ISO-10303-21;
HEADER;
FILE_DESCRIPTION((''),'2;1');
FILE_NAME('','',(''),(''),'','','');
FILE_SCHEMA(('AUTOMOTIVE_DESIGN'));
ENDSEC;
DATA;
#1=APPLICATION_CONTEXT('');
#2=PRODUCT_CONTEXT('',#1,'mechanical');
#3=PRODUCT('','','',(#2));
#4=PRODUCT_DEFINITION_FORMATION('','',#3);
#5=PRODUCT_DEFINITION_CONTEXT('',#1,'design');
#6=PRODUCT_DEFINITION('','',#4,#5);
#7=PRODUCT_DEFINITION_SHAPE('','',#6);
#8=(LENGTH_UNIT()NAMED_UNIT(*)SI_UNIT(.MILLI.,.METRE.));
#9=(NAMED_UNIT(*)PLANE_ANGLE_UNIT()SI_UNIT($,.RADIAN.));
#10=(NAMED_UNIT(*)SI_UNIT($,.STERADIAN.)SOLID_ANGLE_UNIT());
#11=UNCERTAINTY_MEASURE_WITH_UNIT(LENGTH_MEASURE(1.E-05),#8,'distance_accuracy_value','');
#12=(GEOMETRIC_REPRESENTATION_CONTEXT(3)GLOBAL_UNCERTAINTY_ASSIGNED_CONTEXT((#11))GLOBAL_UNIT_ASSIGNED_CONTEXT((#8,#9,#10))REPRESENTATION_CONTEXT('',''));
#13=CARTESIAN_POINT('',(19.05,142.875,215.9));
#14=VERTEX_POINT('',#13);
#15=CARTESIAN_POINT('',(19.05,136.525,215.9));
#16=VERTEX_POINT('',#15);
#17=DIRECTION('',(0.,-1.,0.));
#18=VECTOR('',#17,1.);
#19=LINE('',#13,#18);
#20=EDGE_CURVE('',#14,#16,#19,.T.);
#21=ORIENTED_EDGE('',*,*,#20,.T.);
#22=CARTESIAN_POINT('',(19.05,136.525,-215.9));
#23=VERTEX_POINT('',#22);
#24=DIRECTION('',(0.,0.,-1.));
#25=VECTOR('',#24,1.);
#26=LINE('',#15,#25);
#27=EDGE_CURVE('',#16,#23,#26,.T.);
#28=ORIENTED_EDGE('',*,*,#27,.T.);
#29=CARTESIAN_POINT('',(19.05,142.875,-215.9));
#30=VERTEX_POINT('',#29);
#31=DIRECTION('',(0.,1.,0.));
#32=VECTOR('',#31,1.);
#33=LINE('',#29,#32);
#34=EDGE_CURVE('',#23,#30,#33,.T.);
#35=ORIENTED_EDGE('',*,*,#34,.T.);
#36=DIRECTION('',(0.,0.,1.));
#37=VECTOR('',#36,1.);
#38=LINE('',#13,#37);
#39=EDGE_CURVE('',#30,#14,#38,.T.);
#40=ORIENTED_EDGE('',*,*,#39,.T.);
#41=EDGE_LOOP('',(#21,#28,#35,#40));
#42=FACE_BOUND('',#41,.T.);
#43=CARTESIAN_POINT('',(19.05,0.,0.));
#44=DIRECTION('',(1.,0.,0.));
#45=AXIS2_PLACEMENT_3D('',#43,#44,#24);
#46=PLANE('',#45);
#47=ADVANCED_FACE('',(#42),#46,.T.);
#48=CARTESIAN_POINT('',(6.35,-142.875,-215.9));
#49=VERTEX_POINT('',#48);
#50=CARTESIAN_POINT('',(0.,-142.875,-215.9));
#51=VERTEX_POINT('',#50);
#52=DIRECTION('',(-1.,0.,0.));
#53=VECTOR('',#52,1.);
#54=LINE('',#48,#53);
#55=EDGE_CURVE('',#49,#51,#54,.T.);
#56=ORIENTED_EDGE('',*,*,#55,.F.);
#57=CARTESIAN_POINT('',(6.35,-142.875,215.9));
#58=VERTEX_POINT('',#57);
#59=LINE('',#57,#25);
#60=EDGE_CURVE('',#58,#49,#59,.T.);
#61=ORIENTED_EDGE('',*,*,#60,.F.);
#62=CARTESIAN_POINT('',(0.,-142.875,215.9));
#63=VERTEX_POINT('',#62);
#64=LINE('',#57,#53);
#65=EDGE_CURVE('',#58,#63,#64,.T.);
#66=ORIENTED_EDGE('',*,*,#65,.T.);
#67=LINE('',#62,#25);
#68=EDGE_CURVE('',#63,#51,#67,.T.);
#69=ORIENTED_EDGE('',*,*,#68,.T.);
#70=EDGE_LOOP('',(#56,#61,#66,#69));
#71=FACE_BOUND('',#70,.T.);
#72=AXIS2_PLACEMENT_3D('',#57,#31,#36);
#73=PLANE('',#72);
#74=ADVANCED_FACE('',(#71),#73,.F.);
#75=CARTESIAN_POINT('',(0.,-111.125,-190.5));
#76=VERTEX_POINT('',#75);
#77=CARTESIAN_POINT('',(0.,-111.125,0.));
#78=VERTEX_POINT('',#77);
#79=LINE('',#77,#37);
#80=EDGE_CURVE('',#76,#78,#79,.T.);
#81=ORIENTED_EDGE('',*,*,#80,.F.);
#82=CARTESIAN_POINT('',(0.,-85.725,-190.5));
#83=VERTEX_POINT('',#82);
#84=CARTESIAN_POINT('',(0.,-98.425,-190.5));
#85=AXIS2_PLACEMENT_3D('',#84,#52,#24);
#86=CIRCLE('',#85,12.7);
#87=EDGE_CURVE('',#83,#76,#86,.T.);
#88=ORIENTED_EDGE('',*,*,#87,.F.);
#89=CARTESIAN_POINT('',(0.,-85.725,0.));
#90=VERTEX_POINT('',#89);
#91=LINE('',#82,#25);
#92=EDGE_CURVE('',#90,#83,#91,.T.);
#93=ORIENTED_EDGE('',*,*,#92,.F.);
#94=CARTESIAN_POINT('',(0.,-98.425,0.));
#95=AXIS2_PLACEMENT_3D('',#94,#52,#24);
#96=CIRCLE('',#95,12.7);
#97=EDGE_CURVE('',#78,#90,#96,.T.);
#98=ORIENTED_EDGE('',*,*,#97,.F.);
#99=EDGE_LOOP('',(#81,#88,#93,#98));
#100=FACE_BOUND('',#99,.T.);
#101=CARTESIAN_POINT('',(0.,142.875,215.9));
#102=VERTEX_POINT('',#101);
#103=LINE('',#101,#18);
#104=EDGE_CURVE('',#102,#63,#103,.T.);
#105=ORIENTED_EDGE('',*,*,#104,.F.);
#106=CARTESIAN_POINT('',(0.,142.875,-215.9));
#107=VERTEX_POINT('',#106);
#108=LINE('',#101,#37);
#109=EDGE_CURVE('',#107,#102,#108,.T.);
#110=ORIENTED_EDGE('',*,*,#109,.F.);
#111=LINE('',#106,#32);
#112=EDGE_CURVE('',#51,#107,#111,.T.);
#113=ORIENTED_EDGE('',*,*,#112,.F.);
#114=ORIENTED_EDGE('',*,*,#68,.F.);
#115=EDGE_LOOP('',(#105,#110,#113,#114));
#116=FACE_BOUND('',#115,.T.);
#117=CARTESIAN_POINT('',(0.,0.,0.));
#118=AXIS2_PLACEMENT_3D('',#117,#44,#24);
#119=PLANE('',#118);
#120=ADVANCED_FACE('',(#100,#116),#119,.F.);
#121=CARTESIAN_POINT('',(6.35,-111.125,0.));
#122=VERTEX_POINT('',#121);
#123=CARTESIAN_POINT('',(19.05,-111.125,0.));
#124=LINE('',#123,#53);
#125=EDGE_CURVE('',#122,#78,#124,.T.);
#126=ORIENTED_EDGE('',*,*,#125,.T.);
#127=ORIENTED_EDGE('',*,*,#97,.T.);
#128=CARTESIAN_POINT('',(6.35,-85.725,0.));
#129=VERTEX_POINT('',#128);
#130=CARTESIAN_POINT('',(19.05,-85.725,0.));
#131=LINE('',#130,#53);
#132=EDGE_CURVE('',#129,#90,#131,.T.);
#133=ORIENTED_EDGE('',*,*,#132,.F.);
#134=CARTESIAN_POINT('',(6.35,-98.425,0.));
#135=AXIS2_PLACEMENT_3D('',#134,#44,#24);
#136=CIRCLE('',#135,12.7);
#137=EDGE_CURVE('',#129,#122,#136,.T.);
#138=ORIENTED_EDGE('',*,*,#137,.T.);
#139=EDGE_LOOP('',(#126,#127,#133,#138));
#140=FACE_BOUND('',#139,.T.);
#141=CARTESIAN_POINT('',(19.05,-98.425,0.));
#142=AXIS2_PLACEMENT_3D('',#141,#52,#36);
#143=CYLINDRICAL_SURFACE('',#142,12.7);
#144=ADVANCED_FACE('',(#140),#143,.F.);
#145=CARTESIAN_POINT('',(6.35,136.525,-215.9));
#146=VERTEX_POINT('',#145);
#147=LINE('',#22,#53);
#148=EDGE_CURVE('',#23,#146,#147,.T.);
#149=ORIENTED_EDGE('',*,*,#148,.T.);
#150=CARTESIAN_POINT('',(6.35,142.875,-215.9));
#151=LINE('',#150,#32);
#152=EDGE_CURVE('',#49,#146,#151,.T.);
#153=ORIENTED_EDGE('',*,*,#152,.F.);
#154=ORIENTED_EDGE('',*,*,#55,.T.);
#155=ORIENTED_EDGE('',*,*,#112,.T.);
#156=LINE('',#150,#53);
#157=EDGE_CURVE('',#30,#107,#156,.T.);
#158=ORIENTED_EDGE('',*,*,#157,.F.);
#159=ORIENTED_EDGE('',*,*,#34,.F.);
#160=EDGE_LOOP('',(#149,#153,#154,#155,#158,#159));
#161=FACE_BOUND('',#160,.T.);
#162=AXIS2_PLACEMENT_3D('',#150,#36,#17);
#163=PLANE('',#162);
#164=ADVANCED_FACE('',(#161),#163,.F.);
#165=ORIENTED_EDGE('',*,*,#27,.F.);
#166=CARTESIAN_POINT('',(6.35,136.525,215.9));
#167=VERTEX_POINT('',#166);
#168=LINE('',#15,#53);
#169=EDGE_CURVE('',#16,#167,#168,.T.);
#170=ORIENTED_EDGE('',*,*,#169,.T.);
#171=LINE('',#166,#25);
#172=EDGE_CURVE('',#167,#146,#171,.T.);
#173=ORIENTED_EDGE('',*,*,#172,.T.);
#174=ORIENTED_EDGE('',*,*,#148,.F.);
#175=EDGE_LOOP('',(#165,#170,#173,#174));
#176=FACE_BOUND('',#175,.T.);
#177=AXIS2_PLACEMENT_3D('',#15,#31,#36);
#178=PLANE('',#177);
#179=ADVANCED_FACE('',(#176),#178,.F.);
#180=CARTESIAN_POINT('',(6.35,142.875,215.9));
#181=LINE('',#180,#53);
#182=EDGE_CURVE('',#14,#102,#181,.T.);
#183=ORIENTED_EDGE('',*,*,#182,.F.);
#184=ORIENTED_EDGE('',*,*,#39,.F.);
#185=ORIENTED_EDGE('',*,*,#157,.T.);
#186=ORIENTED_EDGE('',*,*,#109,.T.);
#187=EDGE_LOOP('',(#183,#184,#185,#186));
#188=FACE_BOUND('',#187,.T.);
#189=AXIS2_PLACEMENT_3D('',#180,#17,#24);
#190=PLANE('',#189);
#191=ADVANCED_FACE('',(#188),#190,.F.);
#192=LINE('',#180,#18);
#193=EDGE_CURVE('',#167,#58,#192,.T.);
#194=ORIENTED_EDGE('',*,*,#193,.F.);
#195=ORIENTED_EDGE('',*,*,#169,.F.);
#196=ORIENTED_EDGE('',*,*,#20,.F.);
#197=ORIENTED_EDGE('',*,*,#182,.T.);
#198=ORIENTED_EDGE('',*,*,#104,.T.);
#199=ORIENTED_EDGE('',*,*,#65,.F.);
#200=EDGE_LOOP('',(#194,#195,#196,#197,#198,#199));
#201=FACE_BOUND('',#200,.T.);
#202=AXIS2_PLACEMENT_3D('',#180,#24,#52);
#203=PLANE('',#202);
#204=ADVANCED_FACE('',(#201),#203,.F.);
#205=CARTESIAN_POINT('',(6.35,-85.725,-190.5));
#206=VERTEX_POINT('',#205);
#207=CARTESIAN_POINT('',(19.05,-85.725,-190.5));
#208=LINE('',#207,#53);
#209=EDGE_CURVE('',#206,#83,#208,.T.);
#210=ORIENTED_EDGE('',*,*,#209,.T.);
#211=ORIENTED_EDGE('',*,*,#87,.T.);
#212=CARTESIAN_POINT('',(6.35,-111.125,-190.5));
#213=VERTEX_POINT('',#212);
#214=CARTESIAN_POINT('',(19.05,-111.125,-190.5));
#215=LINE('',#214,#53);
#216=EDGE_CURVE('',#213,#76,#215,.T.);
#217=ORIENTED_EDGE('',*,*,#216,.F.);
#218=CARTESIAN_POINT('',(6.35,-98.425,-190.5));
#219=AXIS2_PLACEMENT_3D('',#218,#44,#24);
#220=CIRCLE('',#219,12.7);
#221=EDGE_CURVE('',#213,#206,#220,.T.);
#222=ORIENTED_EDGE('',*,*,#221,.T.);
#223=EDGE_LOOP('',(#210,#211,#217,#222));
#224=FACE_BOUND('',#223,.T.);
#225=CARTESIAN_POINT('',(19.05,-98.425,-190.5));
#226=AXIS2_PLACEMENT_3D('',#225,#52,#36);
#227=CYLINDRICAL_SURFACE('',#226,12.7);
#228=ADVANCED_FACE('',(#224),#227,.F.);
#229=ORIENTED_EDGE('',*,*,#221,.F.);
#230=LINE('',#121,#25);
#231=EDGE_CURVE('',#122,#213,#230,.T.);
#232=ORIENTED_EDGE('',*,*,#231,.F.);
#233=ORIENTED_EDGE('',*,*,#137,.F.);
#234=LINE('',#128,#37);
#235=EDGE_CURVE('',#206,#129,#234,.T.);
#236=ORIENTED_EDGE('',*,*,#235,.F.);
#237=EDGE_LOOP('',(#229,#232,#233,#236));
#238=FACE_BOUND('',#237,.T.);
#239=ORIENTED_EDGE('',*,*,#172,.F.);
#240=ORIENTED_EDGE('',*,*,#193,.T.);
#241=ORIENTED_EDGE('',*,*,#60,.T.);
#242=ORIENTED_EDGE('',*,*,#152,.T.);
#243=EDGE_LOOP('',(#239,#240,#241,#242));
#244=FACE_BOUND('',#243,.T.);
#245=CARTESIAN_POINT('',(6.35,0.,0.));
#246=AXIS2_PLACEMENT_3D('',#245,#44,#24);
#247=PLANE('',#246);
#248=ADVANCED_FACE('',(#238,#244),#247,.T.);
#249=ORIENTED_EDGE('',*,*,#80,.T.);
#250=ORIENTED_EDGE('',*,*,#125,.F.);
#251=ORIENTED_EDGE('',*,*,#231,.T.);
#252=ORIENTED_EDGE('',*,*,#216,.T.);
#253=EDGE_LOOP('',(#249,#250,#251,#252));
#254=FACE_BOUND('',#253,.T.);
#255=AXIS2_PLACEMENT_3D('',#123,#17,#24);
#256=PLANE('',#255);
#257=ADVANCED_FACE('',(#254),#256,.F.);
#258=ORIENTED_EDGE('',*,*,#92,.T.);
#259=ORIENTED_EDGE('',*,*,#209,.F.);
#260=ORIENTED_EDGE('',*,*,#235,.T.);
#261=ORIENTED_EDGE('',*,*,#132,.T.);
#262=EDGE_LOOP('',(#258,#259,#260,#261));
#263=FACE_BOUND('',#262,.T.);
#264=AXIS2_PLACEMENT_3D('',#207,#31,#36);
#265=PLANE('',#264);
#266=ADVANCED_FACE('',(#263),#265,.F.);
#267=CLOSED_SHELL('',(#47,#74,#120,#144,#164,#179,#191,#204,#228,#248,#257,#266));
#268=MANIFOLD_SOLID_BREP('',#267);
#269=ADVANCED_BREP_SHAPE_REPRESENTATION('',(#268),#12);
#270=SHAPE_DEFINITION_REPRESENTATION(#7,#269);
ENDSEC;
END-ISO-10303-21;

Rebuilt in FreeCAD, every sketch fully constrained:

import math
import FreeCAD as App
import Part
import Sketcher
from FreeCAD import Vector
Q = App.Units.Quantity


def add_polygon(sketch, points):
    """Adds a closed chain of lines whose ends are joined by coincident constraints."""
    first, n = sketch.GeometryCount, len(points)
    for a, b in zip(points, points[1:] + points[:1]):
        sketch.addGeometry(Part.LineSegment(App.Vector(*a, 0), App.Vector(*b, 0)), False)
    for i in range(n):
        sketch.addConstraint(Sketcher.Constraint("Coincident", first + i, 2, first + (i + 1) % n, 1))

doc = App.newDocument("Part")
body = doc.addObject("PartDesign::Body", "Body")

sketch1 = doc.addObject("Sketcher::SketchObject", "Sketch")
body.addObject(sketch1)
sketch1.AttachmentSupport = (doc.YZ_Plane, [""])
sketch1.MapMode = "FlatFace"
add_polygon(sketch1, [(143, 216), (-143, 216), (-143, -216), (143, -216)])
sketch1.addConstraint(Sketcher.Constraint("Horizontal", 0))
sketch1.addConstraint(Sketcher.Constraint("Vertical", 1))
sketch1.addConstraint(Sketcher.Constraint("Horizontal", 2))
sketch1.addConstraint(Sketcher.Constraint("Vertical", 3))
sketch1.addConstraint(Sketcher.Constraint("Symmetric", 0, 2, 2, 2, -1, 1))
sketch1.addConstraint(Sketcher.Constraint("DistanceY", 1, 2, 1, 1, Q("17 in")))
sketch1.addConstraint(Sketcher.Constraint("DistanceX", 0, 2, 0, 1, Q("11.25 in")))
pad1 = doc.addObject("PartDesign::Pad", "Pad")
body.addObject(pad1)
pad1.Profile = sketch1
pad1.Length = Q("0.25 in")

sketch2 = doc.addObject("Sketcher::SketchObject", "Sketch001")
body.addObject(sketch2)
sketch2.AttachmentSupport = (doc.YZ_Plane, [""])
sketch2.MapMode = "FlatFace"
sketch2.AttachmentOffset = App.Placement(Vector(0, 0, 0.25 * 25.4), App.Rotation())
add_polygon(sketch2, [(143, 216), (137, 216), (137, -216), (143, -216)])
sketch2.addConstraint(Sketcher.Constraint("Horizontal", 0))
sketch2.addConstraint(Sketcher.Constraint("Vertical", 1))
sketch2.addConstraint(Sketcher.Constraint("Horizontal", 2))
sketch2.addConstraint(Sketcher.Constraint("Vertical", 3))
sketch2.addConstraint(Sketcher.Constraint("DistanceY", 1, 2, 1, 1, Q("17 in")))
sketch2.addConstraint(Sketcher.Constraint("DistanceX", 0, 2, 0, 1, Q("0.25 in")))
sketch2.addConstraint(Sketcher.Constraint("DistanceY", -1, 1, 0, 2, Q("8.5 in")))
sketch2.addConstraint(Sketcher.Constraint("DistanceX", -1, 1, 0, 2, Q("5.375 in")))
pad2 = doc.addObject("PartDesign::Pad", "Pad001")
body.addObject(pad2)
pad2.Profile = sketch2
pad2.Length = Q("0.5 in")

sketch3 = doc.addObject("Sketcher::SketchObject", "Sketch002")
body.addObject(sketch3)
sketch3.AttachmentSupport = (doc.YZ_Plane, [""])
sketch3.MapMode = "FlatFace"
sketch3.addGeometry(Part.LineSegment(Vector(-86, 0, 0), Vector(-86, -190, 0)), False)
sketch3.addGeometry(Part.ArcOfCircle(Part.Circle(Vector(-98, -190, 0), Vector(0, 0, 1), 13), math.radians(180), math.radians(360)), False)
sketch3.addGeometry(Part.LineSegment(Vector(-111, -190, 0), Vector(-111, 0, 0)), False)
sketch3.addGeometry(Part.ArcOfCircle(Part.Circle(Vector(-98, 0, 0), Vector(0, 0, 1), 13), math.radians(0), math.radians(180)), False)
sketch3.addConstraint(Sketcher.Constraint("Tangent", 0, 2, 1, 2))
sketch3.addConstraint(Sketcher.Constraint("Tangent", 1, 1, 2, 1))
sketch3.addConstraint(Sketcher.Constraint("Tangent", 2, 2, 3, 2))
sketch3.addConstraint(Sketcher.Constraint("Tangent", 3, 1, 0, 1))
sketch3.addConstraint(Sketcher.Constraint("Vertical", 0))
sketch3.addConstraint(Sketcher.Constraint("Vertical", 2))
sketch3.addConstraint(Sketcher.Constraint("PointOnObject", 3, 3, -1))
sketch3.addConstraint(Sketcher.Constraint("Radius", 1, Q("0.5 in")))
sketch3.addConstraint(Sketcher.Constraint("DistanceY", 0, 2, 0, 1, Q("7.5 in")))
sketch3.addConstraint(Sketcher.Constraint("DistanceX", 1, 3, -1, 1, Q("3.875 in")))
pocket1 = doc.addObject("PartDesign::Pocket", "Pocket")
body.addObject(pocket1)
pocket1.Profile = sketch3
pocket1.Type = "ThroughAll"
pocket1.Reversed = True

doc.recompute()
